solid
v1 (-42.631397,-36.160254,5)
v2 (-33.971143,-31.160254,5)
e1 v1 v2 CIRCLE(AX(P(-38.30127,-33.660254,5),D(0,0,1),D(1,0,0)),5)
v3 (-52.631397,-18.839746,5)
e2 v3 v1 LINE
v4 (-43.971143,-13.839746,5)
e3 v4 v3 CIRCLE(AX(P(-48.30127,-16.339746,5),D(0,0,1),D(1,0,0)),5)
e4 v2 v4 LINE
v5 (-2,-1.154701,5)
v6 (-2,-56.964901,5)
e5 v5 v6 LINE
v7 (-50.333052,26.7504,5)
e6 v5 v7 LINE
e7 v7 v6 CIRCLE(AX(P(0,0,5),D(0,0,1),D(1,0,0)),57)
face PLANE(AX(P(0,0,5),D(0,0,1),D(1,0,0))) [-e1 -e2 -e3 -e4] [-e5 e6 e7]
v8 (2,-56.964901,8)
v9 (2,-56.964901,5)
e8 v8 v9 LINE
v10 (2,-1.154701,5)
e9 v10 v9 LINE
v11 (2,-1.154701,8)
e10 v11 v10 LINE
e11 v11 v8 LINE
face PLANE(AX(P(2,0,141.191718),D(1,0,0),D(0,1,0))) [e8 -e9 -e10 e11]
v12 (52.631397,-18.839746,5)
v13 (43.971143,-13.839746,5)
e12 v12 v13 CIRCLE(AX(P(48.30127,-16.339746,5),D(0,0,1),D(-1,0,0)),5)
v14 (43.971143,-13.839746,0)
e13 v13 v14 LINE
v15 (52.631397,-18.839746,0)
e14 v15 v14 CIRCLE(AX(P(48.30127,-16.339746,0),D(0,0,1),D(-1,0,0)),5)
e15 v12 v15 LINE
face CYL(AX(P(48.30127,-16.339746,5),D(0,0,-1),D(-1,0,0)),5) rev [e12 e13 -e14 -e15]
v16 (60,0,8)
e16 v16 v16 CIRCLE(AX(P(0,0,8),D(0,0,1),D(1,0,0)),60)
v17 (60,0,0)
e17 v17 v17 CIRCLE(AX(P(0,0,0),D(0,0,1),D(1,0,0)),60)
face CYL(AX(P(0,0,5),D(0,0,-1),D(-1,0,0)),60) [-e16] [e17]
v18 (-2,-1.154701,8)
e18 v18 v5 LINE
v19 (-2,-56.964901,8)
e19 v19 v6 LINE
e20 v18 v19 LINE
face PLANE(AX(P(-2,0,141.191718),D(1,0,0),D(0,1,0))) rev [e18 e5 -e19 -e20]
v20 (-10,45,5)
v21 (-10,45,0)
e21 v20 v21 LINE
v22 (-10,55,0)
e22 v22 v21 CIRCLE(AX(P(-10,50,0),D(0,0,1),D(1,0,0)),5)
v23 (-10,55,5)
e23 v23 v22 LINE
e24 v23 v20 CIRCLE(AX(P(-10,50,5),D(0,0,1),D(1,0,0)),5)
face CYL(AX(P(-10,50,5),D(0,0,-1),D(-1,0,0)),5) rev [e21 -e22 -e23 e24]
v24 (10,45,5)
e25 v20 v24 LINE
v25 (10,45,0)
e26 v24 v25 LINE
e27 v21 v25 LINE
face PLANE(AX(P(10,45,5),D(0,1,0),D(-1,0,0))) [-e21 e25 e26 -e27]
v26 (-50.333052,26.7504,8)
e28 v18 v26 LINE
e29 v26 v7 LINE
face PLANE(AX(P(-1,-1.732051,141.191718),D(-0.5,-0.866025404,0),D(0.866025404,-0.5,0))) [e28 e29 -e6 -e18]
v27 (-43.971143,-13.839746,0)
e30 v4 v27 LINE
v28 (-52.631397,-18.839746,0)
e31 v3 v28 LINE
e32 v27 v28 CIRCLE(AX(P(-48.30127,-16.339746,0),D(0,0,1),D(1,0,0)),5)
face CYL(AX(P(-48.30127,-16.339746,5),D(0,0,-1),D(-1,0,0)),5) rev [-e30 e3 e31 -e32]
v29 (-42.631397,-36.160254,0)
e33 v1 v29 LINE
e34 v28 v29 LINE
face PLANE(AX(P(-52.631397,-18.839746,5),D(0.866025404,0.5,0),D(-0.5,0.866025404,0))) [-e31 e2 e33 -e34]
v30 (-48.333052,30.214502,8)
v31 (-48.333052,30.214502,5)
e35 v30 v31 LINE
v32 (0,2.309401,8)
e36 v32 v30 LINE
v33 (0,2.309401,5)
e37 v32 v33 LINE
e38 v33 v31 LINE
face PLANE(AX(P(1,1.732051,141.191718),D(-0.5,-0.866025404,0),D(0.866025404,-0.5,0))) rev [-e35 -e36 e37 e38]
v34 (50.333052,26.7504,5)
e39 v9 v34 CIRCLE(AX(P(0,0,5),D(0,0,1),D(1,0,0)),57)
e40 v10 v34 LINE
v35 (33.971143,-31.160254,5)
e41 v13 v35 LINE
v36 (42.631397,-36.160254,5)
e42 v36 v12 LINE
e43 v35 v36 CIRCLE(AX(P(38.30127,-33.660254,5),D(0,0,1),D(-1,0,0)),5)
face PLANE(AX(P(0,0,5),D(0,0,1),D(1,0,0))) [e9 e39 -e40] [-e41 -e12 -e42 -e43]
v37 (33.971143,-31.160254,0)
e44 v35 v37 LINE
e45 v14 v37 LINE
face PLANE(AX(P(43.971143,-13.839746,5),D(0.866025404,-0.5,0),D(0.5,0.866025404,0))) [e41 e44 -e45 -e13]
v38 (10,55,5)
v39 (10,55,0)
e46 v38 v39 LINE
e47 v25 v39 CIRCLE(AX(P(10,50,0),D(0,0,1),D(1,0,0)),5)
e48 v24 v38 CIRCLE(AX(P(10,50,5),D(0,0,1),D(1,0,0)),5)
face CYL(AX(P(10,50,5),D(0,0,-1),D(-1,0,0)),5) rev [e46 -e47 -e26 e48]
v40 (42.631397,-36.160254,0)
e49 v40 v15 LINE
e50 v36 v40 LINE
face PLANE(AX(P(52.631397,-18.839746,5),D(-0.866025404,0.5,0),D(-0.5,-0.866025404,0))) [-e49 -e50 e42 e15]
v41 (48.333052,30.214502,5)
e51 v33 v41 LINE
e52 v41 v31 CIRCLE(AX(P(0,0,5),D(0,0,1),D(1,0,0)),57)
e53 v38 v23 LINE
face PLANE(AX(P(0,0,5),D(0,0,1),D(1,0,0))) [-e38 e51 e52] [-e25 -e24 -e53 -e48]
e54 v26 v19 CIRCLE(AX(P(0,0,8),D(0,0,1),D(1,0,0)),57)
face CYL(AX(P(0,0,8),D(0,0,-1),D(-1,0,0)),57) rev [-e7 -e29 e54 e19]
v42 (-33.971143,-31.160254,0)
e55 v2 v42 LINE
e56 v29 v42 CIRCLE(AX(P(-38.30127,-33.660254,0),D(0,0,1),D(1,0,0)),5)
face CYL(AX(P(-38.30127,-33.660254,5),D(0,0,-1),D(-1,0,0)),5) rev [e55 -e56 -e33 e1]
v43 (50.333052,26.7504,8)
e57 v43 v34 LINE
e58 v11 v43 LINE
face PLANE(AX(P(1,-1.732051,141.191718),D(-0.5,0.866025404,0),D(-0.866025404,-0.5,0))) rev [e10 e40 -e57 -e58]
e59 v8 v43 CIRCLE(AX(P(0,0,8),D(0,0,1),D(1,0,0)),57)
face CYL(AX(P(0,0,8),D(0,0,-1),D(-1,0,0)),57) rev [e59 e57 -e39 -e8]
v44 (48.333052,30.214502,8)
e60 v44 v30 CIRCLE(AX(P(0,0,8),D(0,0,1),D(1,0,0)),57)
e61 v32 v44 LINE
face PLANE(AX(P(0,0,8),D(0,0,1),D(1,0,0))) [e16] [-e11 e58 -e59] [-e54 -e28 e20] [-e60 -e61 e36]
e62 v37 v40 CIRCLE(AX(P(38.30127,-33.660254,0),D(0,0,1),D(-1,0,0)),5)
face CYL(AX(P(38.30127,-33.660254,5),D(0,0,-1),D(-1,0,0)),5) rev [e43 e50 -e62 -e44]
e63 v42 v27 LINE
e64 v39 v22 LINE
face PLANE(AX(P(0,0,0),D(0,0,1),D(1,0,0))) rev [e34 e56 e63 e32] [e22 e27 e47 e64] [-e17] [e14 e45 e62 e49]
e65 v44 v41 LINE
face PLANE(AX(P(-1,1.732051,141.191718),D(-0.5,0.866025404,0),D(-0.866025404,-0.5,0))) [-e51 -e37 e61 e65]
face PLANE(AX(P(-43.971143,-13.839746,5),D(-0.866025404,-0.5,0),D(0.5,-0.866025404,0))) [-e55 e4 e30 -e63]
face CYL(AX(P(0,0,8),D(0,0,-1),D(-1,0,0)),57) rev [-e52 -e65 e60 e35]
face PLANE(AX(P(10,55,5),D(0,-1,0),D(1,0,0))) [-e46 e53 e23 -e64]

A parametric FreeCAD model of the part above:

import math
import FreeCAD as App
import Part
import Sketcher
from FreeCAD import Vector
Q = App.Units.Quantity

doc = App.newDocument("Part")
body = doc.addObject("PartDesign::Body", "Body")

sketch1 = body.newObject("Sketcher::SketchObject", "Sketch")
sketch1.AttachmentSupport = (doc.getObject("XY_Plane"), [""])
sketch1.MapMode = "FlatFace"
sketch1.addGeometry(Part.Circle(Vector(0, 0, 0), Vector(0, 0, 1), 60), False)
sketch1.addGeometry(Part.ArcOfCircle(Part.Circle(Vector(-48, -16, 0), Vector(0, 0, 1), 5), math.radians(30), math.radians(210)), False)
sketch1.addGeometry(Part.LineSegment(Vector(-44, -14, 0), Vector(-34, -31, 0)), False)
sketch1.addGeometry(Part.ArcOfCircle(Part.Circle(Vector(-38, -34, 0), Vector(0, 0, 1), 5), math.radians(-150), math.radians(30)), False)
sketch1.addGeometry(Part.LineSegment(Vector(-43, -36, 0), Vector(-53, -19, 0)), False)
sketch1.addGeometry(Part.LineSegment(Vector(34, -31, 0), Vector(44, -14, 0)), False)
sketch1.addGeometry(Part.ArcOfCircle(Part.Circle(Vector(48, -16, 0), Vector(0, 0, 1), 5), math.radians(-30), math.radians(150)), False)
sketch1.addGeometry(Part.LineSegment(Vector(53, -19, 0), Vector(43, -36, 0)), False)
sketch1.addGeometry(Part.ArcOfCircle(Part.Circle(Vector(38, -34, 0), Vector(0, 0, 1), 5), math.radians(150), math.radians(330)), False)
sketch1.addGeometry(Part.ArcOfCircle(Part.Circle(Vector(10, 50, 0), Vector(0, 0, 1), 5), math.radians(-90), math.radians(90)), False)
sketch1.addGeometry(Part.LineSegment(Vector(10, 45, 0), Vector(-10, 45, 0)), False)
sketch1.addGeometry(Part.ArcOfCircle(Part.Circle(Vector(-10, 50, 0), Vector(0, 0, 1), 5), math.radians(90), math.radians(270)), False)
sketch1.addGeometry(Part.LineSegment(Vector(-10, 55, 0), Vector(10, 55, 0)), False)
sketch1.addConstraint(Sketcher.Constraint("Tangent", 1, 1, 2, 1))
sketch1.addConstraint(Sketcher.Constraint("Tangent", 2, 2, 3, 2))
sketch1.addConstraint(Sketcher.Constraint("Tangent", 3, 1, 4, 1))
sketch1.addConstraint(Sketcher.Constraint("Tangent", 4, 2, 1, 2))
sketch1.addConstraint(Sketcher.Constraint("Tangent", 5, 2, 6, 2))
sketch1.addConstraint(Sketcher.Constraint("Tangent", 6, 1, 7, 1))
sketch1.addConstraint(Sketcher.Constraint("Tangent", 7, 2, 8, 2))
sketch1.addConstraint(Sketcher.Constraint("Tangent", 8, 1, 5, 1))
sketch1.addConstraint(Sketcher.Constraint("Tangent", 9, 1, 10, 1))
sketch1.addConstraint(Sketcher.Constraint("Tangent", 10, 2, 11, 2))
sketch1.addConstraint(Sketcher.Constraint("Tangent", 11, 1, 12, 1))
sketch1.addConstraint(Sketcher.Constraint("Tangent", 12, 2, 9, 2))
sketch1.addConstraint(Sketcher.Constraint("Horizontal", 10))
sketch1.addConstraint(Sketcher.Constraint("Horizontal", 12))
sketch1.addConstraint(Sketcher.Constraint("Coincident", 0, 3, -1, 1))
sketch1.addConstraint(Sketcher.Constraint("Equal", 1, 3))
sketch1.addConstraint(Sketcher.Constraint("Equal", 3, 6))
sketch1.addConstraint(Sketcher.Constraint("Equal", 6, 8))
sketch1.addConstraint(Sketcher.Constraint("Equal", 8, 9))
sketch1.addConstraint(Sketcher.Constraint("Symmetric", 1, 3, 6, 3, -2))
sketch1.addConstraint(Sketcher.Constraint("Symmetric", 3, 3, 8, 3, -2))
sketch1.addConstraint(Sketcher.Constraint("Diameter", 0, 120.0))
sketch1.addConstraint(Sketcher.Constraint("Radius", 1, 5.0))
sketch1.addConstraint(Sketcher.Constraint("DistanceX", 10, 2, 10, 1, 20.0))
sketch1.addConstraint(Sketcher.Constraint("Angle", 2, Q("-60 deg")))
sketch1.addConstraint(Sketcher.Constraint("Distance", 2, 20.0))
sketch1.addConstraint(Sketcher.Constraint("DistanceX", -1, 1, 9, 3, 10.0))
sketch1.addConstraint(Sketcher.Constraint("DistanceY", -1, 1, 9, 3, 50.0))
sketch1.addConstraint(Sketcher.Constraint("DistanceX", 1, 3, -1, 1, 48.30127))
sketch1.addConstraint(Sketcher.Constraint("DistanceY", 1, 3, -1, 1, 16.339746))
pad1 = body.newObject("PartDesign::Pad", "Pad")
pad1.Profile = sketch1
pad1.Length = 5

sketch2 = body.newObject("Sketcher::SketchObject", "Sketch001")
sketch2.AttachmentSupport = (doc.getObject("XY_Plane"), [""])
sketch2.MapMode = "FlatFace"
sketch2.AttachmentOffset = App.Placement(Vector(0, 0, 5), App.Rotation())
sketch2.addGeometry(Part.Circle(Vector(0, 0, 0), Vector(0, 0, 1), 60), False)
sketch2.addGeometry(Part.Circle(Vector(0, 0, 0), Vector(0, 0, 1), 57), False)
sketch2.addConstraint(Sketcher.Constraint("Coincident", 0, 3, -1, 1))
sketch2.addConstraint(Sketcher.Constraint("Coincident", 1, 3, -1, 1))
sketch2.addConstraint(Sketcher.Constraint("Diameter", 0, 120.0))
sketch2.addConstraint(Sketcher.Constraint("Diameter", 1, 114.0))
pad2 = body.newObject("PartDesign::Pad", "Pad001")
pad2.Profile = sketch2
pad2.Length = 3

sketch3 = body.newObject("Sketcher::SketchObject", "Sketch002")
sketch3.AttachmentSupport = (doc.getObject("XY_Plane"), [""])
sketch3.MapMode = "FlatFace"
sketch3.AttachmentOffset = App.Placement(Vector(0, 0, 5), App.Rotation())
sketch3.addGeometry(Part.LineSegment(Vector(48.3, 30.2, 0), Vector(0, 2.3, 0)), False)
sketch3.addGeometry(Part.LineSegment(Vector(0, 2.3, 0), Vector(-48.3, 30.2, 0)), False)
sketch3.addGeometry(Part.ArcOfCircle(Part.Circle(Vector(0, 0, 0), Vector(0, 0, 1), 57), math.radians(147.99), math.radians(152.01)), False)
sketch3.addGeometry(Part.LineSegment(Vector(-50.3, 26.8, 0), Vector(-2, -1.2, 0)), False)
sketch3.addGeometry(Part.LineSegment(Vector(-2, -1.2, 0), Vector(-2, -57, 0)), False)
sketch3.addGeometry(Part.ArcOfCircle(Part.Circle(Vector(0, 0, 0), Vector(0, 0, 1), 57), math.radians(-92.01), math.radians(-87.99)), False)
sketch3.addGeometry(Part.LineSegment(Vector(2, -57, 0), Vector(2, -1.2, 0)), False)
sketch3.addGeometry(Part.LineSegment(Vector(2, -1.2, 0), Vector(50.3, 26.8, 0)), False)
sketch3.addGeometry(Part.ArcOfCircle(Part.Circle(Vector(0, 0, 0), Vector(0, 0, 1), 57), math.radians(27.99), math.radians(32.01)), False)
sketch3.addConstraint(Sketcher.Constraint("Coincident", 0, 2, 1, 1))
sketch3.addConstraint(Sketcher.Constraint("Coincident", 1, 2, 2, 1))
sketch3.addConstraint(Sketcher.Constraint("Coincident", 2, 2, 3, 1))
sketch3.addConstraint(Sketcher.Constraint("Coincident", 3, 2, 4, 1))
sketch3.addConstraint(Sketcher.Constraint("Coincident", 4, 2, 5, 1))
sketch3.addConstraint(Sketcher.Constraint("Coincident", 5, 2, 6, 1))
sketch3.addConstraint(Sketcher.Constraint("Coincident", 6, 2, 7, 1))
sketch3.addConstraint(Sketcher.Constraint("Coincident", 7, 2, 8, 1))
sketch3.addConstraint(Sketcher.Constraint("Coincident", 8, 2, 0, 1))
sketch3.addConstraint(Sketcher.Constraint("Vertical", 4))
sketch3.addConstraint(Sketcher.Constraint("Vertical", 6))
sketch3.addConstraint(Sketcher.Constraint("Coincident", 2, 3, -1, 1))
sketch3.addConstraint(Sketcher.Constraint("Coincident", 5, 3, -1, 1))
sketch3.addConstraint(Sketcher.Constraint("Coincident", 8, 3, -1, 1))
sketch3.addConstraint(Sketcher.Constraint("Equal", 2, 5))
sketch3.addConstraint(Sketcher.Constraint("Equal", 5, 8))
sketch3.addConstraint(Sketcher.Constraint("Symmetric", 3, 2, 6, 2, -2))
sketch3.addConstraint(Sketcher.Constraint("PointOnObject", 0, 2, -2))
sketch3.addConstraint(Sketcher.Constraint("Parallel", 1, 3))
sketch3.addConstraint(Sketcher.Constraint("Parallel", 0, 7))
sketch3.addConstraint(Sketcher.Constraint("Horizontal", 2, 2, 7, 2))
sketch3.addConstraint(Sketcher.Constraint("Equal", 1, 3))
sketch3.addConstraint(Sketcher.Constraint("Radius", 2, 57.0))
sketch3.addConstraint(Sketcher.Constraint("Angle", 0, Q("-150 deg")))
sketch3.addConstraint(Sketcher.Constraint("DistanceX", 3, 2, -1, 1, 2.0))
sketch3.addConstraint(Sketcher.Constraint("DistanceY", 4, 2, 4, 1, 55.810201))
pad3 = body.newObject("PartDesign::Pad", "Pad002")
pad3.Profile = sketch3
pad3.Length = 3

doc.recompute()
